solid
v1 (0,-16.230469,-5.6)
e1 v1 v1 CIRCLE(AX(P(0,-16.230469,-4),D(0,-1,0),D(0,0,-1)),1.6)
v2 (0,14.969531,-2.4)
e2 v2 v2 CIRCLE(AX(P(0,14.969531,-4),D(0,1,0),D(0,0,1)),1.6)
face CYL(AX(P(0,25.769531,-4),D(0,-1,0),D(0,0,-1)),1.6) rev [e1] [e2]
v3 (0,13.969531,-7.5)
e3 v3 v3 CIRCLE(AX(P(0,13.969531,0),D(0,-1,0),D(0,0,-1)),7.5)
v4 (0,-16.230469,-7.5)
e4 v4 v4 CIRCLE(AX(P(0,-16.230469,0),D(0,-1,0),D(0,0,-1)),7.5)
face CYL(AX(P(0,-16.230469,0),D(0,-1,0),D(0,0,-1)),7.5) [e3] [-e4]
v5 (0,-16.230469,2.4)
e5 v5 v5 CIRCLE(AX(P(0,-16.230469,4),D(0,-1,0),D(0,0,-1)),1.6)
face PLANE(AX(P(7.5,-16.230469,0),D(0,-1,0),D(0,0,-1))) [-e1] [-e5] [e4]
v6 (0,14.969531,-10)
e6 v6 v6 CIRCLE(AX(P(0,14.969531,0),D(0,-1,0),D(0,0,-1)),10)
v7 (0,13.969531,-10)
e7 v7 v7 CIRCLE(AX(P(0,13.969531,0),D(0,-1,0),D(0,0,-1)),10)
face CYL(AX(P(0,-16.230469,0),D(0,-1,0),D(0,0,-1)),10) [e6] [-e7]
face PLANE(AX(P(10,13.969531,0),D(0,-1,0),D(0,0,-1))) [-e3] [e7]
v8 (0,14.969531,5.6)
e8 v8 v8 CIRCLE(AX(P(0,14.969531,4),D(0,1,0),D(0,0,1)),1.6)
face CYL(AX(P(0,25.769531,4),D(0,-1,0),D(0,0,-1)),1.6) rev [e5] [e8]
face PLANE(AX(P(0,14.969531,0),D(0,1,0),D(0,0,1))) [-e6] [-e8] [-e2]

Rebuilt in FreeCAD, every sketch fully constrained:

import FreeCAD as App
import Part
import Sketcher
Q = App.Units.Quantity

doc = App.newDocument("Part")
body = doc.addObject("PartDesign::Body", "Body")

# Sketch on XY plane
sketch1 = doc.addObject("Sketcher::SketchObject", "Sketch")
body.addObject(sketch1)
sketch1.AttachmentSupport = (doc.XY_Plane, [""])
sketch1.MapMode = "FlatFace"
sketch1.addGeometry([
    Part.LineSegment(App.Vector(10, 15, 0), App.Vector(0, 15, 0)),  # 0
    Part.LineSegment(App.Vector(0, 15, 0), App.Vector(0, -16.2, 0)),  # 1
    Part.LineSegment(App.Vector(0, -16.2, 0), App.Vector(7.5, -16.2, 0)),  # 2
    Part.LineSegment(App.Vector(7.5, -16.2, 0), App.Vector(7.5, 14, 0)),  # 3
    Part.LineSegment(App.Vector(7.5, 14, 0), App.Vector(10, 14, 0)),  # 4
    Part.LineSegment(App.Vector(10, 14, 0), App.Vector(10, 15, 0)),  # 5
], False)
sketch1.addConstraint([
    Sketcher.Constraint("Coincident", 0, 2, 1, 1),
    Sketcher.Constraint("Coincident", 1, 2, 2, 1),
    Sketcher.Constraint("Coincident", 2, 2, 3, 1),
    Sketcher.Constraint("Coincident", 3, 2, 4, 1),
    Sketcher.Constraint("Coincident", 4, 2, 5, 1),
    Sketcher.Constraint("Coincident", 5, 2, 0, 1),
    Sketcher.Constraint("Horizontal", 0),
    Sketcher.Constraint("Vertical", 1),
    Sketcher.Constraint("Horizontal", 2),
    Sketcher.Constraint("Vertical", 3),
    Sketcher.Constraint("Horizontal", 4),
    Sketcher.Constraint("Vertical", 5),
    Sketcher.Constraint("PointOnObject", 0, 2, -2),
    Sketcher.Constraint("DistanceX", 0, 2, 0, 1, Q("10 mm")),
    Sketcher.Constraint("DistanceY", 5, 1, 5, 2, Q("1 mm")),
    Sketcher.Constraint("DistanceX", 2, 1, 2, 2, Q("7.5 mm")),
    Sketcher.Constraint("DistanceY", 1, 2, 1, 1, Q("31.2 mm")),
    Sketcher.Constraint("DistanceY", -1, 1, 0, 2, Q("14.969531 mm")),
])
revolution = doc.addObject("PartDesign::Revolution", "Revolution")
body.addObject(revolution)
revolution.Profile = sketch1
revolution.ReferenceAxis = (sketch1, ["V_Axis"])
revolution.Angle = 360

# Sketch on XZ plane
sketch2 = doc.addObject("Sketcher::SketchObject", "Sketch001")
body.addObject(sketch2)
sketch2.AttachmentSupport = (doc.XZ_Plane, [""])
sketch2.MapMode = "FlatFace"
sketch2.AttachmentOffset = App.Placement(App.Vector(0, 0, 16.230469), App.Rotation())
sketch2.addGeometry([
    Part.Circle(App.Vector(0, 4, 0), App.Vector(0, 0, 1), 1.6),
    Part.Circle(App.Vector(0, -4, 0), App.Vector(0, 0, 1), 1.6),
], False)
sketch2.addConstraint([
    Sketcher.Constraint("Equal", 0, 1),
    Sketcher.Constraint("Symmetric", 0, 3, 1, 3, -1, 1),
    Sketcher.Constraint("PointOnObject", 0, 3, -2),
    Sketcher.Constraint("Diameter", 0, Q("3.2 mm")),
    Sketcher.Constraint("DistanceY", -1, 1, 0, 3, Q("4 mm")),
])
pocket1 = doc.addObject("PartDesign::Pocket", "Pocket")
body.addObject(pocket1)
pocket1.Profile = sketch2
pocket1.Length = 42

doc.recompute()
